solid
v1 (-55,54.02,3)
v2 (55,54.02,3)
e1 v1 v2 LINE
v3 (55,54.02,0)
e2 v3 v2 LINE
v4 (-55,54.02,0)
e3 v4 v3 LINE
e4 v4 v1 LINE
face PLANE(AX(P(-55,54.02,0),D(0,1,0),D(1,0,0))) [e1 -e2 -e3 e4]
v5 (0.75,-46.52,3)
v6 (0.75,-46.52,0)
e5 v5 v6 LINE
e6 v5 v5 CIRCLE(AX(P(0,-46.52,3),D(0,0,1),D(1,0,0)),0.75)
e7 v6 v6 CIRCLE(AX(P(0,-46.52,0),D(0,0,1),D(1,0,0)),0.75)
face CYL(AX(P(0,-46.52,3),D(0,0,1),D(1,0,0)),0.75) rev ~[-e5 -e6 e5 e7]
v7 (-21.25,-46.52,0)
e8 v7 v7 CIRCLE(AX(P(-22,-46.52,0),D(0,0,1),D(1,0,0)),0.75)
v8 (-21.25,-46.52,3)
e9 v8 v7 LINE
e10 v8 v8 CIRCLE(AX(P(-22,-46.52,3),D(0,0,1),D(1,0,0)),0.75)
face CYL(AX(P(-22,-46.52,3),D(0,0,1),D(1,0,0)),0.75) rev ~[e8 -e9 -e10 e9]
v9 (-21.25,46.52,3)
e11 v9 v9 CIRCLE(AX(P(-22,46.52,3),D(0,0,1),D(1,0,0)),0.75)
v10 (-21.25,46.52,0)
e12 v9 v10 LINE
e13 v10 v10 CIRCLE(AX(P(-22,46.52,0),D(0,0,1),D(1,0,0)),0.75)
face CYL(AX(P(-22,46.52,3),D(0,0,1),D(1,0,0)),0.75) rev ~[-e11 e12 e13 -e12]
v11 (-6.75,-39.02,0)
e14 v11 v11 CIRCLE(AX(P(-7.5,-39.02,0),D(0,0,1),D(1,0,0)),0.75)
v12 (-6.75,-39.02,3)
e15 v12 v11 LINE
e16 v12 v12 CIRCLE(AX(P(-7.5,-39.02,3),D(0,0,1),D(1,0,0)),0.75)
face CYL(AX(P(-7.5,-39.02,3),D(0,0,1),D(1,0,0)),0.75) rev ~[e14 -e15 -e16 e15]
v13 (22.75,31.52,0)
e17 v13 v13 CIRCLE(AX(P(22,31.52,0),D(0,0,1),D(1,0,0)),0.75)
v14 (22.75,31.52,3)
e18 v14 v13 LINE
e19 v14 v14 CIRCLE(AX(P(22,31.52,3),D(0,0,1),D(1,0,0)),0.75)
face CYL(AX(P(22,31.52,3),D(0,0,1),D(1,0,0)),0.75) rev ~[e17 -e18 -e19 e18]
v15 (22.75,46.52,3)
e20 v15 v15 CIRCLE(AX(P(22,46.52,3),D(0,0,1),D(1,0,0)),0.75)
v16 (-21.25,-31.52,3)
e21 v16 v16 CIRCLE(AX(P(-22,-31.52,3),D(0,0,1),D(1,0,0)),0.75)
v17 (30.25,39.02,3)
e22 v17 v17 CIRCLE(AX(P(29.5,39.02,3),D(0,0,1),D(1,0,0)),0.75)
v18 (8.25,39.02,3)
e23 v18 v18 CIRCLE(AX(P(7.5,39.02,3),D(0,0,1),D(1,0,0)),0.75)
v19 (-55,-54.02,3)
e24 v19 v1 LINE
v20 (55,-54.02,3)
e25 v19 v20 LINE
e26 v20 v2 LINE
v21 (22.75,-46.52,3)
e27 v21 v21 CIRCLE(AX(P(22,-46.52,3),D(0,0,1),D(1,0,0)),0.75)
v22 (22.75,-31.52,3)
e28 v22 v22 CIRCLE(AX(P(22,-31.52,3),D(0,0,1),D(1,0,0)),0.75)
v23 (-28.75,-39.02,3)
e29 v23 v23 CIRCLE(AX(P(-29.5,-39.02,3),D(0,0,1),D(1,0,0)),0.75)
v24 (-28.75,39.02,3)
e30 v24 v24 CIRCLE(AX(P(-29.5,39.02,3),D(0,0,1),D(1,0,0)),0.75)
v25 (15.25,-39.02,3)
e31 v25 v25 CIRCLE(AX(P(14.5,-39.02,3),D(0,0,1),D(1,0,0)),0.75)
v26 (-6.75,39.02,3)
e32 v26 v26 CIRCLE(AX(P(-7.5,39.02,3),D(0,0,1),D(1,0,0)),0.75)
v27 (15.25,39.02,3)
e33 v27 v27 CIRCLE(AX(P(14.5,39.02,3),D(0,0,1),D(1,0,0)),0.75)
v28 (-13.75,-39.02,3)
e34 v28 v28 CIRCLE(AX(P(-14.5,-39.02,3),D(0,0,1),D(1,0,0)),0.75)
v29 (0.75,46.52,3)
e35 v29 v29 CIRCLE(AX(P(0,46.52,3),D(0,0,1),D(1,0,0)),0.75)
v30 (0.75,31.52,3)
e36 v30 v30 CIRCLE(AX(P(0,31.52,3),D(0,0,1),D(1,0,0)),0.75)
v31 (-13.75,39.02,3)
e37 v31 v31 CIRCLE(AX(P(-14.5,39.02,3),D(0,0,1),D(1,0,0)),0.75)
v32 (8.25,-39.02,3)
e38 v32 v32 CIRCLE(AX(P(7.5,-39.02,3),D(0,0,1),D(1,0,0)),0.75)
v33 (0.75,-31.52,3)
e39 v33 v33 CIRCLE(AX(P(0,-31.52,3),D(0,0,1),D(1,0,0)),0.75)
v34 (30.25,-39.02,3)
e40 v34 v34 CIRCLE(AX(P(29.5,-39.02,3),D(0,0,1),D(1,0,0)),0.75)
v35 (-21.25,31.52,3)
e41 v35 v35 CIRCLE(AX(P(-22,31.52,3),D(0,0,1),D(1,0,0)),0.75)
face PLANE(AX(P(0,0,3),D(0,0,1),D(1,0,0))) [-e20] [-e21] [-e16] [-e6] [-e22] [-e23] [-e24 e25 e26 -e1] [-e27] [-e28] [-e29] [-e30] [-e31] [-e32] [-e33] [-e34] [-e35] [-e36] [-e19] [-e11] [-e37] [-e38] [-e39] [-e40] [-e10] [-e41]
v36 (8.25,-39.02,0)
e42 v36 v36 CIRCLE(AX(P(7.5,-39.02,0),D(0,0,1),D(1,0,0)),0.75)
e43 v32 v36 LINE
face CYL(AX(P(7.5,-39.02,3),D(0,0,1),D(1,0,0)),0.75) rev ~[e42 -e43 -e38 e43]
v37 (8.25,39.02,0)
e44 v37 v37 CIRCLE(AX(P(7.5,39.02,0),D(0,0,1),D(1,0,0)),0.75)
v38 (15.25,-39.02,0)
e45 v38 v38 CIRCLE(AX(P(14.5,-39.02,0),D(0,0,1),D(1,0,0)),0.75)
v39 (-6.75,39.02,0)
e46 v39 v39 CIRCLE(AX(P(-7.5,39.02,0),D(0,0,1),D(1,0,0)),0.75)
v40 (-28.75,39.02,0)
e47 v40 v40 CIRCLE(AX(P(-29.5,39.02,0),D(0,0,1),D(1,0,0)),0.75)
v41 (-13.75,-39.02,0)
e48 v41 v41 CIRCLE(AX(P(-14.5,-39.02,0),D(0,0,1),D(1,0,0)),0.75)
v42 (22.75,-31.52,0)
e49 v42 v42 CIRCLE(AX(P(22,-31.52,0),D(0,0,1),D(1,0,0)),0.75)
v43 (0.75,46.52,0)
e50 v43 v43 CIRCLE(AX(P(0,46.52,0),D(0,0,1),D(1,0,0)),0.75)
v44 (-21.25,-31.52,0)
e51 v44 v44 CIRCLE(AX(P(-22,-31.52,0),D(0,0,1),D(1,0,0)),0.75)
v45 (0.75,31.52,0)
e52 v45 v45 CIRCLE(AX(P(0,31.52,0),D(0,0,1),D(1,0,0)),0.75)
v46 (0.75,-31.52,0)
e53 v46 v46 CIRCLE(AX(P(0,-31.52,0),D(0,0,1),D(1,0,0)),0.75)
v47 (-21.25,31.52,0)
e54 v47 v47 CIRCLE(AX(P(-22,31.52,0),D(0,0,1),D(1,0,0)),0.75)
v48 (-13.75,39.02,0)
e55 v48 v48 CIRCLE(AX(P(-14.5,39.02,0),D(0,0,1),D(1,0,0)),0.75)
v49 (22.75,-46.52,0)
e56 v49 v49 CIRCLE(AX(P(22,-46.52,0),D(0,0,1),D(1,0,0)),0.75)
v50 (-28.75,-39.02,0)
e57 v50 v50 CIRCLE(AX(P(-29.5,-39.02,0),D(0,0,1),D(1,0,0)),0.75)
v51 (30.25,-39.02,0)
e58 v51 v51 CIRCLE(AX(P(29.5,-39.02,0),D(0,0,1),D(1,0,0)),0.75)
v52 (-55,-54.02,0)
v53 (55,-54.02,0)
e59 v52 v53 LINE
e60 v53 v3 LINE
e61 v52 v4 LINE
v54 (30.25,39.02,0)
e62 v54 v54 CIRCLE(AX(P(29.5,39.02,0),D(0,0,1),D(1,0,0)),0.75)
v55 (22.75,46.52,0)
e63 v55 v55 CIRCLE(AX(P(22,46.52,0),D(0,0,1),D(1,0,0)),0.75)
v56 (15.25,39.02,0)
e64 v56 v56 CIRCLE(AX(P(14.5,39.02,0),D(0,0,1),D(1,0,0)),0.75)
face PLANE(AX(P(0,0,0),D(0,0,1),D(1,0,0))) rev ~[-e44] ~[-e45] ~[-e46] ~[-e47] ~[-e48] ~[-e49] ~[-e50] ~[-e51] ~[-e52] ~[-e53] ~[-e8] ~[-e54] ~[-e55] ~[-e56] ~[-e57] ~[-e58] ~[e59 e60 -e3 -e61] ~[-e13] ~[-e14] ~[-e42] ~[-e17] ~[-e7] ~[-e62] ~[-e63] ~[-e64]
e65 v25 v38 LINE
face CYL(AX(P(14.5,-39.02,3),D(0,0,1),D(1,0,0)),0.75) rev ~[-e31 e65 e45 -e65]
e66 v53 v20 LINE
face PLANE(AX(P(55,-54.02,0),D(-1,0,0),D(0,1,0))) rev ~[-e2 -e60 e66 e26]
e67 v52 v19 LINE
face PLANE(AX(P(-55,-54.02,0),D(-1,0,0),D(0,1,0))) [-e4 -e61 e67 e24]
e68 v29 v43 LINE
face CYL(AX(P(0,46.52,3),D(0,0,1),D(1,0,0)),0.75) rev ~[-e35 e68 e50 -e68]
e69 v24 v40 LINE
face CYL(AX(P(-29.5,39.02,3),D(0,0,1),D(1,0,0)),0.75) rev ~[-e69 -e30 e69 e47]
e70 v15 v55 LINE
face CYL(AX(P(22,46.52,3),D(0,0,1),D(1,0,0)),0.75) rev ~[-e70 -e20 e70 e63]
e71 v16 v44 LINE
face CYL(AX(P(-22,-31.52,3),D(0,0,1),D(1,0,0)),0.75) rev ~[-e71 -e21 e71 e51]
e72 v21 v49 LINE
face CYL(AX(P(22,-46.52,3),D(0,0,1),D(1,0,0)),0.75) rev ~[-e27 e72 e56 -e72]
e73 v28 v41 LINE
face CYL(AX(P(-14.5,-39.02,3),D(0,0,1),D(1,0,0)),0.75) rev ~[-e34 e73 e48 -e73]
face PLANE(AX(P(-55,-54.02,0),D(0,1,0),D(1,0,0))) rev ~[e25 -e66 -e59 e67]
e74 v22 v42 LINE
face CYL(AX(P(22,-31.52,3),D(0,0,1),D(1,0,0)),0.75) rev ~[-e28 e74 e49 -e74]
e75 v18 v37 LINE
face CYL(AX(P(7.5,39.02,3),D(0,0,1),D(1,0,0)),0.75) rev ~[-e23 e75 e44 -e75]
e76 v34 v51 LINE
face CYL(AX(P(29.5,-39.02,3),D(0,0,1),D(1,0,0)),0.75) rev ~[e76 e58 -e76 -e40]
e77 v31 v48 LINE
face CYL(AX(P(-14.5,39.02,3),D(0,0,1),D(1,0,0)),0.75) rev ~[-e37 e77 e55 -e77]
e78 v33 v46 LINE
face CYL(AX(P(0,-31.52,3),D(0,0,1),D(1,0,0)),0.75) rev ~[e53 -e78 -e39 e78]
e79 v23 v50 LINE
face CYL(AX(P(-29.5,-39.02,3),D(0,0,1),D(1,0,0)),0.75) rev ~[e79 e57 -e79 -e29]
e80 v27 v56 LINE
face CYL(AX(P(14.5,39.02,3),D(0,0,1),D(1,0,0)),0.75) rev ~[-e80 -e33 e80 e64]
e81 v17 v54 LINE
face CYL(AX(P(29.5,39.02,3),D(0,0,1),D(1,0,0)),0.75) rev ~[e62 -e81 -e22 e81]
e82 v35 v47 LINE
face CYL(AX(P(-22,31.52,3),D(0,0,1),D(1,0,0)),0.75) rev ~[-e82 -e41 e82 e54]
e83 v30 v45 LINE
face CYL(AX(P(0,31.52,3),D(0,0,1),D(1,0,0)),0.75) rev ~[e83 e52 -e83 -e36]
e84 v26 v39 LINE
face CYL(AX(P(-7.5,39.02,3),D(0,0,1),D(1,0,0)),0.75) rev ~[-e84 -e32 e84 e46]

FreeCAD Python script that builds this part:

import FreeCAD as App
import Part
import Sketcher
from FreeCAD import Vector

doc = App.newDocument("Part")
body = doc.addObject("PartDesign::Body", "Body")

sketch1 = body.newObject("Sketcher::SketchObject", "Sketch")
sketch1.AttachmentSupport = (doc.getObject("XY_Plane"), [""])
sketch1.MapMode = "FlatFace"
sketch1.addGeometry([
    Part.LineSegment(Vector(-55, 54.02, 0), Vector(-55, -54.02, 0)),
    Part.LineSegment(Vector(-55, -54.02, 0), Vector(55, -54.02, 0)),
    Part.LineSegment(Vector(55, -54.02, 0), Vector(55, 54.02, 0)),
    Part.LineSegment(Vector(55, 54.02, 0), Vector(-55, 54.02, 0)),
], False)
sketch1.addConstraint([
    Sketcher.Constraint("Coincident", 0, 2, 1, 1),
    Sketcher.Constraint("Coincident", 1, 2, 2, 1),
    Sketcher.Constraint("Coincident", 2, 2, 3, 1),
    Sketcher.Constraint("Coincident", 3, 2, 0, 1),
    Sketcher.Constraint("Vertical", 0),
    Sketcher.Constraint("Horizontal", 1),
    Sketcher.Constraint("Vertical", 2),
    Sketcher.Constraint("Horizontal", 3),
    Sketcher.Constraint("Symmetric", 0, 2, 2, 2, -1, 1),
    Sketcher.Constraint("DistanceX", 1, 1, 1, 2, 110.0),
    Sketcher.Constraint("DistanceY", 0, 2, 0, 1, 108.04),
])
pad1 = body.newObject("PartDesign::Pad", "Pad")
pad1.Profile = sketch1
pad1.Length = 3

sketch2 = body.newObject("Sketcher::SketchObject", "Sketch001")
sketch2.AttachmentSupport = (doc.getObject("XY_Plane"), [""])
sketch2.MapMode = "FlatFace"
sketch2.AttachmentOffset = App.Placement(Vector(0, 0, 3), App.Rotation())
sketch2.addGeometry(Part.Circle(Vector(7.5, -39.02, 0), Vector(0, 0, 1), 0.75), False)
sketch2.addConstraint([
    Sketcher.Constraint("Diameter", 0, 1.5),
    Sketcher.Constraint("DistanceX", -1, 1, 0, 3, 7.5),
    Sketcher.Constraint("DistanceY", 0, 3, -1, 1, 39.02),
])
pocket1 = body.newObject("PartDesign::Pocket", "Pocket")
pocket1.Profile = sketch2
pocket1.Type = "UpToFirst"

sketch3 = body.newObject("Sketcher::SketchObject", "Sketch002")
sketch3.AttachmentSupport = (doc.getObject("XY_Plane"), [""])
sketch3.MapMode = "FlatFace"
sketch3.AttachmentOffset = App.Placement(Vector(0, 0, 3), App.Rotation())
sketch3.addGeometry(Part.Circle(Vector(-7.5, -39.02, 0), Vector(0, 0, 1), 0.75), False)
sketch3.addConstraint([
    Sketcher.Constraint("Diameter", 0, 1.5),
    Sketcher.Constraint("DistanceX", 0, 3, -1, 1, 7.5),
    Sketcher.Constraint("DistanceY", 0, 3, -1, 1, 39.02),
])
pocket2 = body.newObject("PartDesign::Pocket", "Pocket001")
pocket2.Profile = sketch3
pocket2.Type = "UpToFirst"

sketch4 = body.newObject("Sketcher::SketchObject", "Sketch003")
sketch4.AttachmentSupport = (doc.getObject("XY_Plane"), [""])
sketch4.MapMode = "FlatFace"
sketch4.AttachmentOffset = App.Placement(Vector(0, 0, 3), App.Rotation())
sketch4.addGeometry(Part.Circle(Vector(0, -46.52, 0), Vector(0, 0, 1), 0.75), False)
sketch4.addConstraint([
    Sketcher.Constraint("PointOnObject", 0, 3, -2),
    Sketcher.Constraint("Diameter", 0, 1.5),
    Sketcher.Constraint("DistanceY", 0, 3, -1, 1, 46.52),
])
pocket3 = body.newObject("PartDesign::Pocket", "Pocket002")
pocket3.Profile = sketch4
pocket3.Type = "UpToFirst"

sketch5 = body.newObject("Sketcher::SketchObject", "Sketch004")
sketch5.AttachmentSupport = (doc.getObject("XY_Plane"), [""])
sketch5.MapMode = "FlatFace"
sketch5.AttachmentOffset = App.Placement(Vector(0, 0, 3), App.Rotation())
sketch5.addGeometry(Part.Circle(Vector(0, -31.52, 0), Vector(0, 0, 1), 0.75), False)
sketch5.addConstraint([
    Sketcher.Constraint("PointOnObject", 0, 3, -2),
    Sketcher.Constraint("Diameter", 0, 1.5),
    Sketcher.Constraint("DistanceY", 0, 3, -1, 1, 31.52),
])
pocket4 = body.newObject("PartDesign::Pocket", "Pocket003")
pocket4.Profile = sketch5
pocket4.Type = "UpToFirst"

sketch6 = body.newObject("Sketcher::SketchObject", "Sketch005")
sketch6.AttachmentSupport = (doc.getObject("XY_Plane"), [""])
sketch6.MapMode = "FlatFace"
sketch6.AttachmentOffset = App.Placement(Vector(0, 0, 3), App.Rotation())
sketch6.addGeometry(Part.Circle(Vector(14.5, -39.02, 0), Vector(0, 0, 1), 0.75), False)
sketch6.addConstraint([
    Sketcher.Constraint("Diameter", 0, 1.5),
    Sketcher.Constraint("DistanceX", -1, 1, 0, 3, 14.5),
    Sketcher.Constraint("DistanceY", 0, 3, -1, 1, 39.02),
])
pocket5 = body.newObject("PartDesign::Pocket", "Pocket004")
pocket5.Profile = sketch6
pocket5.Type = "UpToFirst"

sketch7 = body.newObject("Sketcher::SketchObject", "Sketch006")
sketch7.AttachmentSupport = (doc.getObject("XY_Plane"), [""])
sketch7.MapMode = "FlatFace"
sketch7.AttachmentOffset = App.Placement(Vector(0, 0, 3), App.Rotation())
sketch7.addGeometry(Part.Circle(Vector(22, -31.52, 0), Vector(0, 0, 1), 0.75), False)
sketch7.addConstraint([
    Sketcher.Constraint("Diameter", 0, 1.5),
    Sketcher.Constraint("DistanceX", -1, 1, 0, 3, 22.0),
    Sketcher.Constraint("DistanceY", 0, 3, -1, 1, 31.52),
])
pocket6 = body.newObject("PartDesign::Pocket", "Pocket005")
pocket6.Profile = sketch7
pocket6.Type = "UpToFirst"

sketch8 = body.newObject("Sketcher::SketchObject", "Sketch007")
sketch8.AttachmentSupport = (doc.getObject("XY_Plane"), [""])
sketch8.MapMode = "FlatFace"
sketch8.AttachmentOffset = App.Placement(Vector(0, 0, 3), App.Rotation())
sketch8.addGeometry(Part.Circle(Vector(22, -46.52, 0), Vector(0, 0, 1), 0.75), False)
sketch8.addConstraint([
    Sketcher.Constraint("Diameter", 0, 1.5),
    Sketcher.Constraint("DistanceX", -1, 1, 0, 3, 22.0),
    Sketcher.Constraint("DistanceY", 0, 3, -1, 1, 46.52),
])
pocket7 = body.newObject("PartDesign::Pocket", "Pocket006")
pocket7.Profile = sketch8
pocket7.Type = "UpToFirst"

sketch9 = body.newObject("Sketcher::SketchObject", "Sketch008")
sketch9.AttachmentSupport = (doc.getObject("XY_Plane"), [""])
sketch9.MapMode = "FlatFace"
sketch9.AttachmentOffset = App.Placement(Vector(0, 0, 3), App.Rotation())
sketch9.addGeometry(Part.Circle(Vector(29.5, -39.02, 0), Vector(0, 0, 1), 0.75), False)
sketch9.addConstraint([
    Sketcher.Constraint("Diameter", 0, 1.5),
    Sketcher.Constraint("DistanceX", -1, 1, 0, 3, 29.5),
    Sketcher.Constraint("DistanceY", 0, 3, -1, 1, 39.02),
])
pocket8 = body.newObject("PartDesign::Pocket", "Pocket007")
pocket8.Profile = sketch9
pocket8.Type = "UpToFirst"

sketch10 = body.newObject("Sketcher::SketchObject", "Sketch009")
sketch10.AttachmentSupport = (doc.getObject("XY_Plane"), [""])
sketch10.MapMode = "FlatFace"
sketch10.AttachmentOffset = App.Placement(Vector(0, 0, 3), App.Rotation())
sketch10.addGeometry(Part.Circle(Vector(-22, -31.52, 0), Vector(0, 0, 1), 0.75), False)
sketch10.addConstraint([
    Sketcher.Constraint("Diameter", 0, 1.5),
    Sketcher.Constraint("DistanceX", 0, 3, -1, 1, 22.0),
    Sketcher.Constraint("DistanceY", 0, 3, -1, 1, 31.52),
])
pocket9 = body.newObject("PartDesign::Pocket", "Pocket008")
pocket9.Profile = sketch10
pocket9.Type = "UpToFirst"

sketch11 = body.newObject("Sketcher::SketchObject", "Sketch010")
sketch11.AttachmentSupport = (doc.getObject("XY_Plane"), [""])
sketch11.MapMode = "FlatFace"
sketch11.AttachmentOffset = App.Placement(Vector(0, 0, 3), App.Rotation())
sketch11.addGeometry(Part.Circle(Vector(-29.5, -39.02, 0), Vector(0, 0, 1), 0.75), False)
sketch11.addConstraint([
    Sketcher.Constraint("Diameter", 0, 1.5),
    Sketcher.Constraint("DistanceX", 0, 3, -1, 1, 29.5),
    Sketcher.Constraint("DistanceY", 0, 3, -1, 1, 39.02),
])
pocket10 = body.newObject("PartDesign::Pocket", "Pocket009")
pocket10.Profile = sketch11
pocket10.Type = "UpToFirst"

sketch12 = body.newObject("Sketcher::SketchObject", "Sketch011")
sketch12.AttachmentSupport = (doc.getObject("XY_Plane"), [""])
sketch12.MapMode = "FlatFace"
sketch12.AttachmentOffset = App.Placement(Vector(0, 0, 3), App.Rotation())
sketch12.addGeometry(Part.Circle(Vector(-22, -46.52, 0), Vector(0, 0, 1), 0.75), False)
sketch12.addConstraint([
    Sketcher.Constraint("Diameter", 0, 1.5),
    Sketcher.Constraint("DistanceX", 0, 3, -1, 1, 22.0),
    Sketcher.Constraint("DistanceY", 0, 3, -1, 1, 46.52),
])
pocket11 = body.newObject("PartDesign::Pocket", "Pocket010")
pocket11.Profile = sketch12
pocket11.Type = "UpToFirst"

sketch13 = body.newObject("Sketcher::SketchObject", "Sketch012")
sketch13.AttachmentSupport = (doc.getObject("XY_Plane"), [""])
sketch13.MapMode = "FlatFace"
sketch13.AttachmentOffset = App.Placement(Vector(0, 0, 3), App.Rotation())
sketch13.addGeometry(Part.Circle(Vector(-14.5, -39.02, 0), Vector(0, 0, 1), 0.75), False)
sketch13.addConstraint([
    Sketcher.Constraint("Diameter", 0, 1.5),
    Sketcher.Constraint("DistanceX", 0, 3, -1, 1, 14.5),
    Sketcher.Constraint("DistanceY", 0, 3, -1, 1, 39.02),
])
pocket12 = body.newObject("PartDesign::Pocket", "Pocket011")
pocket12.Profile = sketch13
pocket12.Type = "UpToFirst"

sketch14 = body.newObject("Sketcher::SketchObject", "Sketch013")
sketch14.AttachmentSupport = (doc.getObject("XY_Plane"), [""])
sketch14.MapMode = "FlatFace"
sketch14.AttachmentOffset = App.Placement(Vector(0, 0, 3), App.Rotation())
sketch14.addGeometry(Part.Circle(Vector(29.5, 39.02, 0), Vector(0, 0, 1), 0.75), False)
sketch14.addConstraint([
    Sketcher.Constraint("Diameter", 0, 1.5),
    Sketcher.Constraint("DistanceX", -1, 1, 0, 3, 29.5),
    Sketcher.Constraint("DistanceY", -1, 1, 0, 3, 39.02),
])
pocket13 = body.newObject("PartDesign::Pocket", "Pocket012")
pocket13.Profile = sketch14
pocket13.Type = "UpToFirst"

sketch15 = body.newObject("Sketcher::SketchObject", "Sketch014")
sketch15.AttachmentSupport = (doc.getObject("XY_Plane"), [""])
sketch15.MapMode = "FlatFace"
sketch15.AttachmentOffset = App.Placement(Vector(0, 0, 3), App.Rotation())
sketch15.addGeometry(Part.Circle(Vector(22, 31.52, 0), Vector(0, 0, 1), 0.75), False)
sketch15.addConstraint([
    Sketcher.Constraint("Diameter", 0, 1.5),
    Sketcher.Constraint("DistanceX", -1, 1, 0, 3, 22.0),
    Sketcher.Constraint("DistanceY", -1, 1, 0, 3, 31.52),
])
pocket14 = body.newObject("PartDesign::Pocket", "Pocket013")
pocket14.Profile = sketch15
pocket14.Type = "UpToFirst"

sketch16 = body.newObject("Sketcher::SketchObject", "Sketch015")
sketch16.AttachmentSupport = (doc.getObject("XY_Plane"), [""])
sketch16.MapMode = "FlatFace"
sketch16.AttachmentOffset = App.Placement(Vector(0, 0, 3), App.Rotation())
sketch16.addGeometry(Part.Circle(Vector(22, 46.52, 0), Vector(0, 0, 1), 0.75), False)
sketch16.addConstraint([
    Sketcher.Constraint("Diameter", 0, 1.5),
    Sketcher.Constraint("DistanceX", -1, 1, 0, 3, 22.0),
    Sketcher.Constraint("DistanceY", -1, 1, 0, 3, 46.52),
])
pocket15 = body.newObject("PartDesign::Pocket", "Pocket014")
pocket15.Profile = sketch16
pocket15.Type = "UpToFirst"

sketch17 = body.newObject("Sketcher::SketchObject", "Sketch016")
sketch17.AttachmentSupport = (doc.getObject("XY_Plane"), [""])
sketch17.MapMode = "FlatFace"
sketch17.AttachmentOffset = App.Placement(Vector(0, 0, 3), App.Rotation())
sketch17.addGeometry(Part.Circle(Vector(14.5, 39.02, 0), Vector(0, 0, 1), 0.75), False)
sketch17.addConstraint([
    Sketcher.Constraint("Diameter", 0, 1.5),
    Sketcher.Constraint("DistanceX", -1, 1, 0, 3, 14.5),
    Sketcher.Constraint("DistanceY", -1, 1, 0, 3, 39.02),
])
pocket16 = body.newObject("PartDesign::Pocket", "Pocket015")
pocket16.Profile = sketch17
pocket16.Type = "UpToFirst"

sketch18 = body.newObject("Sketcher::SketchObject", "Sketch017")
sketch18.AttachmentSupport = (doc.getObject("XY_Plane"), [""])
sketch18.MapMode = "FlatFace"
sketch18.AttachmentOffset = App.Placement(Vector(0, 0, 3), App.Rotation())
sketch18.addGeometry(Part.Circle(Vector(7.5, 39.02, 0), Vector(0, 0, 1), 0.75), False)
sketch18.addConstraint([
    Sketcher.Constraint("Diameter", 0, 1.5),
    Sketcher.Constraint("DistanceX", -1, 1, 0, 3, 7.5),
    Sketcher.Constraint("DistanceY", -1, 1, 0, 3, 39.02),
])
pocket17 = body.newObject("PartDesign::Pocket", "Pocket016")
pocket17.Profile = sketch18
pocket17.Type = "UpToFirst"

sketch19 = body.newObject("Sketcher::SketchObject", "Sketch018")
sketch19.AttachmentSupport = (doc.getObject("XY_Plane"), [""])
sketch19.MapMode = "FlatFace"
sketch19.AttachmentOffset = App.Placement(Vector(0, 0, 3), App.Rotation())
sketch19.addGeometry(Part.Circle(Vector(0, 46.52, 0), Vector(0, 0, 1), 0.75), False)
sketch19.addConstraint([
    Sketcher.Constraint("PointOnObject", 0, 3, -2),
    Sketcher.Constraint("Diameter", 0, 1.5),
    Sketcher.Constraint("DistanceY", -1, 1, 0, 3, 46.52),
])
pocket18 = body.newObject("PartDesign::Pocket", "Pocket017")
pocket18.Profile = sketch19
pocket18.Type = "UpToFirst"

sketch20 = body.newObject("Sketcher::SketchObject", "Sketch019")
sketch20.AttachmentSupport = (doc.getObject("XY_Plane"), [""])
sketch20.MapMode = "FlatFace"
sketch20.AttachmentOffset = App.Placement(Vector(0, 0, 3), App.Rotation())
sketch20.addGeometry(Part.Circle(Vector(0, 31.52, 0), Vector(0, 0, 1), 0.75), False)
sketch20.addConstraint([
    Sketcher.Constraint("PointOnObject", 0, 3, -2),
    Sketcher.Constraint("Diameter", 0, 1.5),
    Sketcher.Constraint("DistanceY", -1, 1, 0, 3, 31.52),
])
pocket19 = body.newObject("PartDesign::Pocket", "Pocket018")
pocket19.Profile = sketch20
pocket19.Type = "UpToFirst"

sketch21 = body.newObject("Sketcher::SketchObject", "Sketch020")
sketch21.AttachmentSupport = (doc.getObject("XY_Plane"), [""])
sketch21.MapMode = "FlatFace"
sketch21.AttachmentOffset = App.Placement(Vector(0, 0, 3), App.Rotation())
sketch21.addGeometry(Part.Circle(Vector(-7.5, 39.02, 0), Vector(0, 0, 1), 0.75), False)
sketch21.addConstraint([
    Sketcher.Constraint("Diameter", 0, 1.5),
    Sketcher.Constraint("DistanceX", 0, 3, -1, 1, 7.5),
    Sketcher.Constraint("DistanceY", -1, 1, 0, 3, 39.02),
])
pocket20 = body.newObject("PartDesign::Pocket", "Pocket019")
pocket20.Profile = sketch21
pocket20.Type = "UpToFirst"

sketch22 = body.newObject("Sketcher::SketchObject", "Sketch021")
sketch22.AttachmentSupport = (doc.getObject("XY_Plane"), [""])
sketch22.MapMode = "FlatFace"
sketch22.AttachmentOffset = App.Placement(Vector(0, 0, 3), App.Rotation())
sketch22.addGeometry(Part.Circle(Vector(-14.5, 39.02, 0), Vector(0, 0, 1), 0.75), False)
sketch22.addConstraint([
    Sketcher.Constraint("Diameter", 0, 1.5),
    Sketcher.Constraint("DistanceX", 0, 3, -1, 1, 14.5),
    Sketcher.Constraint("DistanceY", -1, 1, 0, 3, 39.02),
])
pocket21 = body.newObject("PartDesign::Pocket", "Pocket020")
pocket21.Profile = sketch22
pocket21.Type = "UpToFirst"

sketch23 = body.newObject("Sketcher::SketchObject", "Sketch022")
sketch23.AttachmentSupport = (doc.getObject("XY_Plane"), [""])
sketch23.MapMode = "FlatFace"
sketch23.AttachmentOffset = App.Placement(Vector(0, 0, 3), App.Rotation())
sketch23.addGeometry(Part.Circle(Vector(-22, 46.52, 0), Vector(0, 0, 1), 0.75), False)
sketch23.addConstraint([
    Sketcher.Constraint("Diameter", 0, 1.5),
    Sketcher.Constraint("DistanceX", 0, 3, -1, 1, 22.0),
    Sketcher.Constraint("DistanceY", -1, 1, 0, 3, 46.52),
])
pocket22 = body.newObject("PartDesign::Pocket", "Pocket021")
pocket22.Profile = sketch23
pocket22.Type = "UpToFirst"

sketch24 = body.newObject("Sketcher::SketchObject", "Sketch023")
sketch24.AttachmentSupport = (doc.getObject("XY_Plane"), [""])
sketch24.MapMode = "FlatFace"
sketch24.AttachmentOffset = App.Placement(Vector(0, 0, 3), App.Rotation())
sketch24.addGeometry(Part.Circle(Vector(-22, 31.52, 0), Vector(0, 0, 1), 0.75), False)
sketch24.addConstraint([
    Sketcher.Constraint("Diameter", 0, 1.5),
    Sketcher.Constraint("DistanceX", 0, 3, -1, 1, 22.0),
    Sketcher.Constraint("DistanceY", -1, 1, 0, 3, 31.52),
])
pocket23 = body.newObject("PartDesign::Pocket", "Pocket022")
pocket23.Profile = sketch24
pocket23.Type = "UpToFirst"

sketch25 = body.newObject("Sketcher::SketchObject", "Sketch024")
sketch25.AttachmentSupport = (doc.getObject("XY_Plane"), [""])
sketch25.MapMode = "FlatFace"
sketch25.AttachmentOffset = App.Placement(Vector(0, 0, 3), App.Rotation())
sketch25.addGeometry(Part.Circle(Vector(-29.5, 39.02, 0), Vector(0, 0, 1), 0.75), False)
sketch25.addConstraint([
    Sketcher.Constraint("Diameter", 0, 1.5),
    Sketcher.Constraint("DistanceX", 0, 3, -1, 1, 29.5),
    Sketcher.Constraint("DistanceY", -1, 1, 0, 3, 39.02),
])
pocket24 = body.newObject("PartDesign::Pocket", "Pocket023")
pocket24.Profile = sketch25
pocket24.Type = "UpToFirst"

doc.recompute()
